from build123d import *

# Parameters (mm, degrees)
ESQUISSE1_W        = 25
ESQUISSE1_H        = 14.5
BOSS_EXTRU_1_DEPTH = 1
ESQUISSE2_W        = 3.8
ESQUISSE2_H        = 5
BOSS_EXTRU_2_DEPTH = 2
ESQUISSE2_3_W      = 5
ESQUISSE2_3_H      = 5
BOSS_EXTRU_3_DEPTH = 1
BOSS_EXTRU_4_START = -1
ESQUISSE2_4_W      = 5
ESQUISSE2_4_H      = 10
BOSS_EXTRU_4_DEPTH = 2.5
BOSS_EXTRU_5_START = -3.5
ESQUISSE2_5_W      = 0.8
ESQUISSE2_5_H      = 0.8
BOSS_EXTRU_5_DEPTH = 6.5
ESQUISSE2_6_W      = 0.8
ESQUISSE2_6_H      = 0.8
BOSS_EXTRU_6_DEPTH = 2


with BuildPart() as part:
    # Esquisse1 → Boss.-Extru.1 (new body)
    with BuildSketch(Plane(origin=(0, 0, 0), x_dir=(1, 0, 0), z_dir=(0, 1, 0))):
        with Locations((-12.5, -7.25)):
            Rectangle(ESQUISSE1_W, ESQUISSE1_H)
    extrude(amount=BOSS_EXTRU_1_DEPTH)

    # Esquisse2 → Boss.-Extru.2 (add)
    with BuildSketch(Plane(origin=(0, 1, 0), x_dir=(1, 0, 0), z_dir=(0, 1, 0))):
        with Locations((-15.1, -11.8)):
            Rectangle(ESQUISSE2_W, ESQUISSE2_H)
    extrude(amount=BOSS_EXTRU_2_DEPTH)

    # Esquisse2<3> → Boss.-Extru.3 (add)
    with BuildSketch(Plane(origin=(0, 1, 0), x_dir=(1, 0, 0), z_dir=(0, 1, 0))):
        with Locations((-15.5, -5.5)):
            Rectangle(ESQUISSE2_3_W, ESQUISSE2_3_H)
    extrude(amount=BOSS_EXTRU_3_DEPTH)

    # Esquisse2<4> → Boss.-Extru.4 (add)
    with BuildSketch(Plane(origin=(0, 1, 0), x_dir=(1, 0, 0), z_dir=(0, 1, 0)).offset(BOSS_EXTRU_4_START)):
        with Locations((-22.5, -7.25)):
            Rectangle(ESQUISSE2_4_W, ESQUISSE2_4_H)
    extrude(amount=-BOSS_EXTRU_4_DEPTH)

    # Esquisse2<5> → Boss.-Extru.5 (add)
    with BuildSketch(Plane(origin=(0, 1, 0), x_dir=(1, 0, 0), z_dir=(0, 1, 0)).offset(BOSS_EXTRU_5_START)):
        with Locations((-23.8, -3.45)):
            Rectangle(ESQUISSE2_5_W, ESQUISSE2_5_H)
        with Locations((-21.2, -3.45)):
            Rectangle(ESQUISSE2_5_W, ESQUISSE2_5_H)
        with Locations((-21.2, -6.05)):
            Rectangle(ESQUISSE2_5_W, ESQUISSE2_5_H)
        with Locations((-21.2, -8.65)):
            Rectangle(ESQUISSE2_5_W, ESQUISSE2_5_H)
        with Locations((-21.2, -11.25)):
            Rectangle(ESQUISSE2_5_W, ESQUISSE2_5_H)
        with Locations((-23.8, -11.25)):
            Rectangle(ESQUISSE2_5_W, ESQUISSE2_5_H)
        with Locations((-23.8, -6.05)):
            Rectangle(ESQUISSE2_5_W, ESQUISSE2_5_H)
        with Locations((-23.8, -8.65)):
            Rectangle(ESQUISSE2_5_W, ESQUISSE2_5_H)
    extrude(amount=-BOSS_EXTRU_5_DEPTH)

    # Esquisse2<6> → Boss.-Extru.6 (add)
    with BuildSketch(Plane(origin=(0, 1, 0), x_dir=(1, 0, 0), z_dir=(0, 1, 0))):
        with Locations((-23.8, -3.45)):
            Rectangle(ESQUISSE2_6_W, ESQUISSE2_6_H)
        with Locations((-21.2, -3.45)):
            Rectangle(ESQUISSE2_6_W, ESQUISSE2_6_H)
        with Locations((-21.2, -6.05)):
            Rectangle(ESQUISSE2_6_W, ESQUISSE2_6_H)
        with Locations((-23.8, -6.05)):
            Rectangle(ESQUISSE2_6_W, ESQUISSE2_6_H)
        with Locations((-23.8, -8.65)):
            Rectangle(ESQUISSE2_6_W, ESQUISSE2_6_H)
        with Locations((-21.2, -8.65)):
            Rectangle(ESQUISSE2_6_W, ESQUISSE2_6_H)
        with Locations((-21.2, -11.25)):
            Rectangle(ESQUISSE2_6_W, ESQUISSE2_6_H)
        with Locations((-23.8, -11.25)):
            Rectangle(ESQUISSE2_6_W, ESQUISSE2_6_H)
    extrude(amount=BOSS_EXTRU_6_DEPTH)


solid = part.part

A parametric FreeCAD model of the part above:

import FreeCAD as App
import Part
import Sketcher
Q = App.Units.Quantity

doc = App.newDocument("Part")
body = doc.addObject("PartDesign::Body", "Body")

# Sketch on XZ plane
sketch1 = body.newObject("Sketcher::SketchObject", "Sketch")
sketch1.AttachmentSupport = (doc.getObject("XZ_Plane"), [""])
sketch1.MapMode = "FlatFace"
sketch1.addGeometry([
    Part.LineSegment(App.Vector(-25, 0, 0), App.Vector(-25, 14, 0)),
    Part.LineSegment(App.Vector(-25, 14, 0), App.Vector(0, 14, 0)),
    Part.LineSegment(App.Vector(0, 14, 0), App.Vector(0, 0, 0)),
    Part.LineSegment(App.Vector(0, 0, 0), App.Vector(-25, 0, 0)),
], False)
sketch1.addConstraint([
    Sketcher.Constraint("Coincident", 0, 2, 1, 1),
    Sketcher.Constraint("Coincident", 1, 2, 2, 1),
    Sketcher.Constraint("Coincident", 2, 2, 3, 1),
    Sketcher.Constraint("Coincident", 3, 2, 0, 1),
    Sketcher.Constraint("Vertical", 0),
    Sketcher.Constraint("Horizontal", 1),
    Sketcher.Constraint("Vertical", 2),
    Sketcher.Constraint("Horizontal", 3),
    Sketcher.Constraint("Coincident", 2, 2, -1, 1),
    Sketcher.Constraint("DistanceX", 1, 1, 1, 2, Q("25 mm")),
    Sketcher.Constraint("DistanceY", 0, 1, 0, 2, Q("14.5 mm")),
])
pad1 = body.newObject("PartDesign::Pad", "Pad")
pad1.Profile = sketch1
pad1.Length = 1
pad1.Reversed = True

# Sketch on XZ plane
sketch2 = body.newObject("Sketcher::SketchObject", "Sketch001")
sketch2.AttachmentSupport = (doc.getObject("XZ_Plane"), [""])
sketch2.MapMode = "FlatFace"
sketch2.AttachmentOffset = App.Placement(App.Vector(0, 0, -1), App.Rotation())
sketch2.addGeometry([
    Part.LineSegment(App.Vector(-17, 9.3, 0), App.Vector(-17, 14.3, 0)),
    Part.LineSegment(App.Vector(-17, 14.3, 0), App.Vector(-13.2, 14.3, 0)),
    Part.LineSegment(App.Vector(-13.2, 14.3, 0), App.Vector(-13.2, 9.3, 0)),
    Part.LineSegment(App.Vector(-13.2, 9.3, 0), App.Vector(-17, 9.3, 0)),
], False)
sketch2.addConstraint([
    Sketcher.Constraint("Coincident", 0, 2, 1, 1),
    Sketcher.Constraint("Coincident", 1, 2, 2, 1),
    Sketcher.Constraint("Coincident", 2, 2, 3, 1),
    Sketcher.Constraint("Coincident", 3, 2, 0, 1),
    Sketcher.Constraint("Vertical", 0),
    Sketcher.Constraint("Horizontal", 1),
    Sketcher.Constraint("Vertical", 2),
    Sketcher.Constraint("Horizontal", 3),
    Sketcher.Constraint("DistanceY", 0, 1, 0, 2, Q("5 mm")),
    Sketcher.Constraint("DistanceX", 1, 1, 1, 2, Q("3.8 mm")),
    Sketcher.Constraint("DistanceX", 0, 2, -1, 1, Q("17 mm")),
    Sketcher.Constraint("DistanceY", -1, 1, 0, 2, Q("14.3 mm")),
])
pad2 = body.newObject("PartDesign::Pad", "Pad001")
pad2.Profile = sketch2
pad2.Length = 2
pad2.Reversed = True

# Sketch on XZ plane
sketch3 = body.newObject("Sketcher::SketchObject", "Sketch002")
sketch3.AttachmentSupport = (doc.getObject("XZ_Plane"), [""])
sketch3.MapMode = "FlatFace"
sketch3.AttachmentOffset = App.Placement(App.Vector(0, 0, -1), App.Rotation())
sketch3.addGeometry([
    Part.LineSegment(App.Vector(-18, 3, 0), App.Vector(-18, 8, 0)),
    Part.LineSegment(App.Vector(-18, 8, 0), App.Vector(-13, 8, 0)),
    Part.LineSegment(App.Vector(-13, 8, 0), App.Vector(-13, 3, 0)),
    Part.LineSegment(App.Vector(-13, 3, 0), App.Vector(-18, 3, 0)),
], False)
sketch3.addConstraint([
    Sketcher.Constraint("Coincident", 0, 2, 1, 1),
    Sketcher.Constraint("Coincident", 1, 2, 2, 1),
    Sketcher.Constraint("Coincident", 2, 2, 3, 1),
    Sketcher.Constraint("Coincident", 3, 2, 0, 1),
    Sketcher.Constraint("Vertical", 0),
    Sketcher.Constraint("Horizontal", 1),
    Sketcher.Constraint("Vertical", 2),
    Sketcher.Constraint("Horizontal", 3),
    Sketcher.Constraint("Equal", 3, 0),
    Sketcher.Constraint("DistanceX", 1, 1, 1, 2, Q("5 mm")),
    Sketcher.Constraint("DistanceX", 0, 2, -1, 1, Q("18 mm")),
    Sketcher.Constraint("DistanceY", -1, 1, 0, 2, Q("8 mm")),
])
pad3 = body.newObject("PartDesign::Pad", "Pad002")
pad3.Profile = sketch3
pad3.Length = 1
pad3.Reversed = True

# Sketch on XZ plane
sketch4 = body.newObject("Sketcher::SketchObject", "Sketch003")
sketch4.AttachmentSupport = (doc.getObject("XZ_Plane"), [""])
sketch4.MapMode = "FlatFace"
sketch4.addGeometry([
    Part.LineSegment(App.Vector(-25, 2, 0), App.Vector(-25, 12, 0)),
    Part.LineSegment(App.Vector(-25, 12, 0), App.Vector(-20, 12, 0)),
    Part.LineSegment(App.Vector(-20, 12, 0), App.Vector(-20, 2, 0)),
    Part.LineSegment(App.Vector(-20, 2, 0), App.Vector(-25, 2, 0)),
], False)
sketch4.addConstraint([
    Sketcher.Constraint("Coincident", 0, 2, 1, 1),
    Sketcher.Constraint("Coincident", 1, 2, 2, 1),
    Sketcher.Constraint("Coincident", 2, 2, 3, 1),
    Sketcher.Constraint("Coincident", 3, 2, 0, 1),
    Sketcher.Constraint("Vertical", 0),
    Sketcher.Constraint("Horizontal", 1),
    Sketcher.Constraint("Vertical", 2),
    Sketcher.Constraint("Horizontal", 3),
    Sketcher.Constraint("DistanceX", 1, 1, 1, 2, Q("5 mm")),
    Sketcher.Constraint("DistanceY", 0, 1, 0, 2, Q("10 mm")),
    Sketcher.Constraint("DistanceX", 0, 2, -1, 1, Q("25 mm")),
    Sketcher.Constraint("DistanceY", -1, 1, 0, 2, Q("12.25 mm")),
])
pad4 = body.newObject("PartDesign::Pad", "Pad003")
pad4.Profile = sketch4
pad4.Length = 2.5

# Sketch on XZ plane
sketch5 = body.newObject("Sketcher::SketchObject", "Sketch004")
sketch5.AttachmentSupport = (doc.getObject("XZ_Plane"), [""])
sketch5.MapMode = "FlatFace"
sketch5.AttachmentOffset = App.Placement(App.Vector(0, 0, 2.5), App.Rotation())
sketch5.addGeometry([
    Part.LineSegment(App.Vector(-24.2, 3, 0), App.Vector(-24.2, 3.9, 0)),  # 0
    Part.LineSegment(App.Vector(-24.2, 3.9, 0), App.Vector(-23.4, 3.9, 0)),  # 1
    Part.LineSegment(App.Vector(-23.4, 3.9, 0), App.Vector(-23.4, 3, 0)),  # 2
    Part.LineSegment(App.Vector(-23.4, 3, 0), App.Vector(-24.2, 3, 0)),  # 3
    Part.LineSegment(App.Vector(-21.6, 3, 0), App.Vector(-21.6, 3.9, 0)),  # 4
    Part.LineSegment(App.Vector(-21.6, 3.9, 0), App.Vector(-20.8, 3.9, 0)),  # 5
    Part.LineSegment(App.Vector(-20.8, 3.9, 0), App.Vector(-20.8, 3, 0)),  # 6
    Part.LineSegment(App.Vector(-20.8, 3, 0), App.Vector(-21.6, 3, 0)),  # 7
    Part.LineSegment(App.Vector(-21.6, 5.7, 0), App.Vector(-21.6, 6.5, 0)),  # 8
    Part.LineSegment(App.Vector(-21.6, 6.5, 0), App.Vector(-20.8, 6.5, 0)),  # 9
    Part.LineSegment(App.Vector(-20.8, 6.5, 0), App.Vector(-20.8, 5.7, 0)),  # 10
    Part.LineSegment(App.Vector(-20.8, 5.7, 0), App.Vector(-21.6, 5.7, 0)),  # 11
    Part.LineSegment(App.Vector(-21.6, 8.2, 0), App.Vector(-21.6, 9.1, 0)),  # 12
    Part.LineSegment(App.Vector(-21.6, 9.1, 0), App.Vector(-20.8, 9.1, 0)),  # 13
    Part.LineSegment(App.Vector(-20.8, 9.1, 0), App.Vector(-20.8, 8.2, 0)),  # 14
    Part.LineSegment(App.Vector(-20.8, 8.2, 0), App.Vector(-21.6, 8.2, 0)),  # 15
    Part.LineSegment(App.Vector(-21.6, 10.8, 0), App.Vector(-21.6, 11.7, 0)),  # 16
    Part.LineSegment(App.Vector(-21.6, 11.7, 0), App.Vector(-20.8, 11.7, 0)),  # 17
    Part.LineSegment(App.Vector(-20.8, 11.7, 0), App.Vector(-20.8, 10.8, 0)),  # 18
    Part.LineSegment(App.Vector(-20.8, 10.8, 0), App.Vector(-21.6, 10.8, 0)),  # 19
    Part.LineSegment(App.Vector(-24.2, 10.8, 0), App.Vector(-24.2, 11.7, 0)),  # 20
    Part.LineSegment(App.Vector(-24.2, 11.7, 0), App.Vector(-23.4, 11.7, 0)),  # 21
    Part.LineSegment(App.Vector(-23.4, 11.7, 0), App.Vector(-23.4, 10.8, 0)),  # 22
    Part.LineSegment(App.Vector(-23.4, 10.8, 0), App.Vector(-24.2, 10.8, 0)),  # 23
    Part.LineSegment(App.Vector(-24.2, 5.7, 0), App.Vector(-24.2, 6.5, 0)),  # 24
    Part.LineSegment(App.Vector(-24.2, 6.5, 0), App.Vector(-23.4, 6.5, 0)),  # 25
    Part.LineSegment(App.Vector(-23.4, 6.5, 0), App.Vector(-23.4, 5.7, 0)),  # 26
    Part.LineSegment(App.Vector(-23.4, 5.7, 0), App.Vector(-24.2, 5.7, 0)),  # 27
    Part.LineSegment(App.Vector(-24.2, 8.2, 0), App.Vector(-24.2, 9.1, 0)),  # 28
    Part.LineSegment(App.Vector(-24.2, 9.1, 0), App.Vector(-23.4, 9.1, 0)),  # 29
    Part.LineSegment(App.Vector(-23.4, 9.1, 0), App.Vector(-23.4, 8.2, 0)),  # 30
    Part.LineSegment(App.Vector(-23.4, 8.2, 0), App.Vector(-24.2, 8.2, 0)),  # 31
], False)
sketch5.addConstraint([
    Sketcher.Constraint("Coincident", 0, 2, 1, 1),
    Sketcher.Constraint("Coincident", 1, 2, 2, 1),
    Sketcher.Constraint("Coincident", 2, 2, 3, 1),
    Sketcher.Constraint("Coincident", 3, 2, 0, 1),
    Sketcher.Constraint("Coincident", 4, 2, 5, 1),
    Sketcher.Constraint("Coincident", 5, 2, 6, 1),
    Sketcher.Constraint("Coincident", 6, 2, 7, 1),
    Sketcher.Constraint("Coincident", 7, 2, 4, 1),
    Sketcher.Constraint("Coincident", 8, 2, 9, 1),
    Sketcher.Constraint("Coincident", 9, 2, 10, 1),
    Sketcher.Constraint("Coincident", 10, 2, 11, 1),
    Sketcher.Constraint("Coincident", 11, 2, 8, 1),
    Sketcher.Constraint("Coincident", 12, 2, 13, 1),
    Sketcher.Constraint("Coincident", 13, 2, 14, 1),
    Sketcher.Constraint("Coincident", 14, 2, 15, 1),
    Sketcher.Constraint("Coincident", 15, 2, 12, 1),
    Sketcher.Constraint("Coincident", 16, 2, 17, 1),
    Sketcher.Constraint("Coincident", 17, 2, 18, 1),
    Sketcher.Constraint("Coincident", 18, 2, 19, 1),
    Sketcher.Constraint("Coincident", 19, 2, 16, 1),
    Sketcher.Constraint("Coincident", 20, 2, 21, 1),
    Sketcher.Constraint("Coincident", 21, 2, 22, 1),
    Sketcher.Constraint("Coincident", 22, 2, 23, 1),
    Sketcher.Constraint("Coincident", 23, 2, 20, 1),
    Sketcher.Constraint("Coincident", 24, 2, 25, 1),
    Sketcher.Constraint("Coincident", 25, 2, 26, 1),
    Sketcher.Constraint("Coincident", 26, 2, 27, 1),
    Sketcher.Constraint("Coincident", 27, 2, 24, 1),
    Sketcher.Constraint("Coincident", 28, 2, 29, 1),
    Sketcher.Constraint("Coincident", 29, 2, 30, 1),
    Sketcher.Constraint("Coincident", 30, 2, 31, 1),
    Sketcher.Constraint("Coincident", 31, 2, 28, 1),
    Sketcher.Constraint("Vertical", 0),
    Sketcher.Constraint("Horizontal", 1),
    Sketcher.Constraint("Vertical", 2),
    Sketcher.Constraint("Horizontal", 3),
    Sketcher.Constraint("Vertical", 4),
    Sketcher.Constraint("Horizontal", 5),
    Sketcher.Constraint("Vertical", 6),
    Sketcher.Constraint("Horizontal", 7),
    Sketcher.Constraint("Vertical", 8),
    Sketcher.Constraint("Horizontal", 9),
    Sketcher.Constraint("Vertical", 10),
    Sketcher.Constraint("Horizontal", 11),
    Sketcher.Constraint("Vertical", 12),
    Sketcher.Constraint("Horizontal", 13),
    Sketcher.Constraint("Vertical", 14),
    Sketcher.Constraint("Horizontal", 15),
    Sketcher.Constraint("Vertical", 16),
    Sketcher.Constraint("Horizontal", 17),
    Sketcher.Constraint("Vertical", 18),
    Sketcher.Constraint("Horizontal", 19),
    Sketcher.Constraint("Vertical", 20),
    Sketcher.Constraint("Horizontal", 21),
    Sketcher.Constraint("Vertical", 22),
    Sketcher.Constraint("Horizontal", 23),
    Sketcher.Constraint("Vertical", 24),
    Sketcher.Constraint("Horizontal", 25),
    Sketcher.Constraint("Vertical", 26),
    Sketcher.Constraint("Horizontal", 27),
    Sketcher.Constraint("Vertical", 28),
    Sketcher.Constraint("Horizontal", 29),
    Sketcher.Constraint("Vertical", 30),
    Sketcher.Constraint("Horizontal", 31),
    Sketcher.Constraint("Horizontal", 1, 2, 4, 2),
    Sketcher.Constraint("Horizontal", 3, 2, 6, 2),
    Sketcher.Constraint("Horizontal", 17, 2, 20, 2),
    Sketcher.Constraint("Horizontal", 19, 2, 22, 2),
    Sketcher.Constraint("Horizontal", 9, 2, 24, 2),
    Sketcher.Constraint("Horizontal", 11, 2, 26, 2),
    Sketcher.Constraint("Horizontal", 13, 2, 28, 2),
    Sketcher.Constraint("Horizontal", 15, 2, 30, 2),
    Sketcher.Constraint("Vertical", 7, 2, 8, 2),
    Sketcher.Constraint("Vertical", 6, 2, 9, 2),
    Sketcher.Constraint("Vertical", 11, 2, 12, 2),
    Sketcher.Constraint("Vertical", 10, 2, 13, 2),
    Sketcher.Constraint("Vertical", 15, 2, 16, 2),
    Sketcher.Constraint("Vertical", 14, 2, 17, 2),
    Sketcher.Constraint("Vertical", 3, 2, 20, 2),
    Sketcher.Constraint("Vertical", 2, 2, 21, 2),
    Sketcher.Constraint("Vertical", 23, 2, 24, 2),
    Sketcher.Constraint("Vertical", 22, 2, 25, 2),
    Sketcher.Constraint("Vertical", 27, 2, 28, 2),
    Sketcher.Constraint("Vertical", 26, 2, 29, 2),
    Sketcher.Constraint("Equal", 3, 5),
    Sketcher.Constraint("Equal", 31, 0),
    Sketcher.Constraint("Equal", 6, 8),
    Sketcher.Constraint("Equal", 10, 12),
    Sketcher.Constraint("Equal", 14, 16),
    Sketcher.Constraint("DistanceX", 1, 1, 1, 2, Q("0.8 mm")),
    Sketcher.Constraint("DistanceX", 0, 2, -1, 1, Q("24.2 mm")),
    Sketcher.Constraint("DistanceX", 4, 2, -1, 1, Q("21.6 mm")),
    Sketcher.Constraint("DistanceY", 4, 2, 8, 2, Q("2.6 mm")),
    Sketcher.Constraint("DistanceY", 8, 2, 12, 2, Q("2.6 mm")),
    Sketcher.Constraint("DistanceY", 12, 2, 16, 2, Q("2.6 mm")),
    Sketcher.Constraint("DistanceY", -1, 1, 0, 2, Q("3.85 mm")),
])
pad5 = body.newObject("PartDesign::Pad", "Pad004")
pad5.Profile = sketch5
pad5.Length = 6.5

# Sketch on XZ plane
sketch6 = body.newObject("Sketcher::SketchObject", "Sketch005")
sketch6.AttachmentSupport = (doc.getObject("XZ_Plane"), [""])
sketch6.MapMode = "FlatFace"
sketch6.AttachmentOffset = App.Placement(App.Vector(0, 0, -1), App.Rotation())
sketch6.addGeometry([
    Part.LineSegment(App.Vector(-24.2, 3, 0), App.Vector(-24.2, 3.9, 0)),  # 0
    Part.LineSegment(App.Vector(-24.2, 3.9, 0), App.Vector(-23.4, 3.9, 0)),  # 1
    Part.LineSegment(App.Vector(-23.4, 3.9, 0), App.Vector(-23.4, 3, 0)),  # 2
    Part.LineSegment(App.Vector(-23.4, 3, 0), App.Vector(-24.2, 3, 0)),  # 3
    Part.LineSegment(App.Vector(-21.6, 3, 0), App.Vector(-21.6, 3.9, 0)),  # 4
    Part.LineSegment(App.Vector(-21.6, 3.9, 0), App.Vector(-20.8, 3.9, 0)),  # 5
    Part.LineSegment(App.Vector(-20.8, 3.9, 0), App.Vector(-20.8, 3, 0)),  # 6
    Part.LineSegment(App.Vector(-20.8, 3, 0), App.Vector(-21.6, 3, 0)),  # 7
    Part.LineSegment(App.Vector(-21.6, 5.7, 0), App.Vector(-21.6, 6.5, 0)),  # 8
    Part.LineSegment(App.Vector(-21.6, 6.5, 0), App.Vector(-20.8, 6.5, 0)),  # 9
    Part.LineSegment(App.Vector(-20.8, 6.5, 0), App.Vector(-20.8, 5.7, 0)),  # 10
    Part.LineSegment(App.Vector(-20.8, 5.7, 0), App.Vector(-21.6, 5.7, 0)),  # 11
    Part.LineSegment(App.Vector(-24.2, 5.7, 0), App.Vector(-24.2, 6.5, 0)),  # 12
    Part.LineSegment(App.Vector(-24.2, 6.5, 0), App.Vector(-23.4, 6.5, 0)),  # 13
    Part.LineSegment(App.Vector(-23.4, 6.5, 0), App.Vector(-23.4, 5.7, 0)),  # 14
    Part.LineSegment(App.Vector(-23.4, 5.7, 0), App.Vector(-24.2, 5.7, 0)),  # 15
    Part.LineSegment(App.Vector(-24.2, 8.2, 0), App.Vector(-24.2, 9.1, 0)),  # 16
    Part.LineSegment(App.Vector(-24.2, 9.1, 0), App.Vector(-23.4, 9.1, 0)),  # 17
    Part.LineSegment(App.Vector(-23.4, 9.1, 0), App.Vector(-23.4, 8.2, 0)),  # 18
    Part.LineSegment(App.Vector(-23.4, 8.2, 0), App.Vector(-24.2, 8.2, 0)),  # 19
    Part.LineSegment(App.Vector(-21.6, 8.2, 0), App.Vector(-21.6, 9.1, 0)),  # 20
    Part.LineSegment(App.Vector(-21.6, 9.1, 0), App.Vector(-20.8, 9.1, 0)),  # 21
    Part.LineSegment(App.Vector(-20.8, 9.1, 0), App.Vector(-20.8, 8.2, 0)),  # 22
    Part.LineSegment(App.Vector(-20.8, 8.2, 0), App.Vector(-21.6, 8.2, 0)),  # 23
    Part.LineSegment(App.Vector(-21.6, 10.8, 0), App.Vector(-21.6, 11.7, 0)),  # 24
    Part.LineSegment(App.Vector(-21.6, 11.7, 0), App.Vector(-20.8, 11.7, 0)),  # 25
    Part.LineSegment(App.Vector(-20.8, 11.7, 0), App.Vector(-20.8, 10.8, 0)),  # 26
    Part.LineSegment(App.Vector(-20.8, 10.8, 0), App.Vector(-21.6, 10.8, 0)),  # 27
    Part.LineSegment(App.Vector(-24.2, 10.8, 0), App.Vector(-24.2, 11.7, 0)),  # 28
    Part.LineSegment(App.Vector(-24.2, 11.7, 0), App.Vector(-23.4, 11.7, 0)),  # 29
    Part.LineSegment(App.Vector(-23.4, 11.7, 0), App.Vector(-23.4, 10.8, 0)),  # 30
    Part.LineSegment(App.Vector(-23.4, 10.8, 0), App.Vector(-24.2, 10.8, 0)),  # 31
], False)
sketch6.addConstraint([
    Sketcher.Constraint("Coincident", 0, 2, 1, 1),
    Sketcher.Constraint("Coincident", 1, 2, 2, 1),
    Sketcher.Constraint("Coincident", 2, 2, 3, 1),
    Sketcher.Constraint("Coincident", 3, 2, 0, 1),
    Sketcher.Constraint("Coincident", 4, 2, 5, 1),
    Sketcher.Constraint("Coincident", 5, 2, 6, 1),
    Sketcher.Constraint("Coincident", 6, 2, 7, 1),
    Sketcher.Constraint("Coincident", 7, 2, 4, 1),
    Sketcher.Constraint("Coincident", 8, 2, 9, 1),
    Sketcher.Constraint("Coincident", 9, 2, 10, 1),
    Sketcher.Constraint("Coincident", 10, 2, 11, 1),
    Sketcher.Constraint("Coincident", 11, 2, 8, 1),
    Sketcher.Constraint("Coincident", 12, 2, 13, 1),
    Sketcher.Constraint("Coincident", 13, 2, 14, 1),
    Sketcher.Constraint("Coincident", 14, 2, 15, 1),
    Sketcher.Constraint("Coincident", 15, 2, 12, 1),
    Sketcher.Constraint("Coincident", 16, 2, 17, 1),
    Sketcher.Constraint("Coincident", 17, 2, 18, 1),
    Sketcher.Constraint("Coincident", 18, 2, 19, 1),
    Sketcher.Constraint("Coincident", 19, 2, 16, 1),
    Sketcher.Constraint("Coincident", 20, 2, 21, 1),
    Sketcher.Constraint("Coincident", 21, 2, 22, 1),
    Sketcher.Constraint("Coincident", 22, 2, 23, 1),
    Sketcher.Constraint("Coincident", 23, 2, 20, 1),
    Sketcher.Constraint("Coincident", 24, 2, 25, 1),
    Sketcher.Constraint("Coincident", 25, 2, 26, 1),
    Sketcher.Constraint("Coincident", 26, 2, 27, 1),
    Sketcher.Constraint("Coincident", 27, 2, 24, 1),
    Sketcher.Constraint("Coincident", 28, 2, 29, 1),
    Sketcher.Constraint("Coincident", 29, 2, 30, 1),
    Sketcher.Constraint("Coincident", 30, 2, 31, 1),
    Sketcher.Constraint("Coincident", 31, 2, 28, 1),
    Sketcher.Constraint("Vertical", 0),
    Sketcher.Constraint("Horizontal", 1),
    Sketcher.Constraint("Vertical", 2),
    Sketcher.Constraint("Horizontal", 3),
    Sketcher.Constraint("Vertical", 4),
    Sketcher.Constraint("Horizontal", 5),
    Sketcher.Constraint("Vertical", 6),
    Sketcher.Constraint("Horizontal", 7),
    Sketcher.Constraint("Vertical", 8),
    Sketcher.Constraint("Horizontal", 9),
    Sketcher.Constraint("Vertical", 10),
    Sketcher.Constraint("Horizontal", 11),
    Sketcher.Constraint("Vertical", 12),
    Sketcher.Constraint("Horizontal", 13),
    Sketcher.Constraint("Vertical", 14),
    Sketcher.Constraint("Horizontal", 15),
    Sketcher.Constraint("Vertical", 16),
    Sketcher.Constraint("Horizontal", 17),
    Sketcher.Constraint("Vertical", 18),
    Sketcher.Constraint("Horizontal", 19),
    Sketcher.Constraint("Vertical", 20),
    Sketcher.Constraint("Horizontal", 21),
    Sketcher.Constraint("Vertical", 22),
    Sketcher.Constraint("Horizontal", 23),
    Sketcher.Constraint("Vertical", 24),
    Sketcher.Constraint("Horizontal", 25),
    Sketcher.Constraint("Vertical", 26),
    Sketcher.Constraint("Horizontal", 27),
    Sketcher.Constraint("Vertical", 28),
    Sketcher.Constraint("Horizontal", 29),
    Sketcher.Constraint("Vertical", 30),
    Sketcher.Constraint("Horizontal", 31),
    Sketcher.Constraint("Horizontal", 1, 2, 4, 2),
    Sketcher.Constraint("Horizontal", 3, 2, 6, 2),
    Sketcher.Constraint("Horizontal", 9, 2, 12, 2),
    Sketcher.Constraint("Horizontal", 11, 2, 14, 2),
    Sketcher.Constraint("Horizontal", 17, 2, 20, 2),
    Sketcher.Constraint("Horizontal", 19, 2, 22, 2),
    Sketcher.Constraint("Horizontal", 25, 2, 28, 2),
    Sketcher.Constraint("Horizontal", 27, 2, 30, 2),
    Sketcher.Constraint("Vertical", 7, 2, 8, 2),
    Sketcher.Constraint("Vertical", 6, 2, 9, 2),
    Sketcher.Constraint("Vertical", 3, 2, 12, 2),
    Sketcher.Constraint("Vertical", 2, 2, 13, 2),
    Sketcher.Constraint("Vertical", 15, 2, 16, 2),
    Sketcher.Constraint("Vertical", 14, 2, 17, 2),
    Sketcher.Constraint("Vertical", 11, 2, 20, 2),
    Sketcher.Constraint("Vertical", 10, 2, 21, 2),
    Sketcher.Constraint("Vertical", 23, 2, 24, 2),
    Sketcher.Constraint("Vertical", 22, 2, 25, 2),
    Sketcher.Constraint("Vertical", 19, 2, 28, 2),
    Sketcher.Constraint("Vertical", 18, 2, 29, 2),
    Sketcher.Constraint("Equal", 3, 5),
    Sketcher.Constraint("Equal", 31, 0),
    Sketcher.Constraint("Equal", 6, 8),
    Sketcher.Constraint("Equal", 14, 16),
    Sketcher.Constraint("Equal", 22, 24),
    Sketcher.Constraint("DistanceX", 1, 1, 1, 2, Q("0.8 mm")),
    Sketcher.Constraint("DistanceX", 0, 2, -1, 1, Q("24.2 mm")),
    Sketcher.Constraint("DistanceX", 4, 2, -1, 1, Q("21.6 mm")),
    Sketcher.Constraint("DistanceY", 4, 2, 8, 2, Q("2.6 mm")),
    Sketcher.Constraint("DistanceY", 12, 2, 16, 2, Q("2.6 mm")),
    Sketcher.Constraint("DistanceY", 20, 2, 24, 2, Q("2.6 mm")),
    Sketcher.Constraint("DistanceY", -1, 1, 0, 2, Q("3.85 mm")),
])
pad6 = body.newObject("PartDesign::Pad", "Pad005")
pad6.Profile = sketch6
pad6.Length = 2
pad6.Reversed = True

doc.recompute()
